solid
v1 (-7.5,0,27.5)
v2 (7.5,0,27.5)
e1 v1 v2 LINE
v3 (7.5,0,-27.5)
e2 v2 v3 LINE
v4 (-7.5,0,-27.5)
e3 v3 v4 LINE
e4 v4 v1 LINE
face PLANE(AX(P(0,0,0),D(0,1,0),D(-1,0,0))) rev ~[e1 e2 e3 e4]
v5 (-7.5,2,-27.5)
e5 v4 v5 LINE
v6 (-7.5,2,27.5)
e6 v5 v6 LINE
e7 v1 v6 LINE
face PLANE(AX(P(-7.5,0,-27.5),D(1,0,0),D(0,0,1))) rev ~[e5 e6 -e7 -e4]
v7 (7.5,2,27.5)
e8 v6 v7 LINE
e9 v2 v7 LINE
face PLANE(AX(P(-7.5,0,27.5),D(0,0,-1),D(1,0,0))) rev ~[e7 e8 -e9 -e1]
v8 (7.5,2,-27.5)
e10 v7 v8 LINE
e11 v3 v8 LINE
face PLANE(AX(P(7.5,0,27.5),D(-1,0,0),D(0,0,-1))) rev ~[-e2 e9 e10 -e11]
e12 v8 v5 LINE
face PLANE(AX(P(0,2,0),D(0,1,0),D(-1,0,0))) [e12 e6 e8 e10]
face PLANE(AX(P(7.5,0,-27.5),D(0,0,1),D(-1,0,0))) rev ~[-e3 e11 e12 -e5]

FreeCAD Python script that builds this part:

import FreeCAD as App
import Part
import Sketcher

V = App.Vector

doc = App.newDocument("Part")
body = doc.addObject("PartDesign::Body", "Body")

sketch1 = doc.addObject("Sketcher::SketchObject", "Sketch")
body.addObject(sketch1)
sketch1.AttachmentSupport = (doc.XZ_Plane, [""])
sketch1.MapMode = "FlatFace"
sketch1.addGeometry([
    Part.LineSegment(V(-8, -28, 0), V(-8, 28, 0)),
    Part.LineSegment(V(-8, 28, 0), V(8, 28, 0)),
    Part.LineSegment(V(8, 28, 0), V(8, -28, 0)),
    Part.LineSegment(V(8, -28, 0), V(-8, -28, 0)),
], False)
sketch1.addConstraint([
    Sketcher.Constraint("Coincident", 0, 2, 1, 1),
    Sketcher.Constraint("Coincident", 1, 2, 2, 1),
    Sketcher.Constraint("Coincident", 2, 2, 3, 1),
    Sketcher.Constraint("Coincident", 3, 2, 0, 1),
    Sketcher.Constraint("Vertical", 0),
    Sketcher.Constraint("Horizontal", 1),
    Sketcher.Constraint("Vertical", 2),
    Sketcher.Constraint("Horizontal", 3),
    Sketcher.Constraint("Symmetric", 0, 2, 2, 2, -1, 1),
    Sketcher.Constraint("DistanceX", 1, 1, 1, 2, 15.0),
    Sketcher.Constraint("DistanceY", 0, 1, 0, 2, 55.0),
])
pad1 = doc.addObject("PartDesign::Pad", "Pad")
body.addObject(pad1)
pad1.Profile = sketch1
pad1.Length = 2
pad1.Reversed = True

doc.recompute()
